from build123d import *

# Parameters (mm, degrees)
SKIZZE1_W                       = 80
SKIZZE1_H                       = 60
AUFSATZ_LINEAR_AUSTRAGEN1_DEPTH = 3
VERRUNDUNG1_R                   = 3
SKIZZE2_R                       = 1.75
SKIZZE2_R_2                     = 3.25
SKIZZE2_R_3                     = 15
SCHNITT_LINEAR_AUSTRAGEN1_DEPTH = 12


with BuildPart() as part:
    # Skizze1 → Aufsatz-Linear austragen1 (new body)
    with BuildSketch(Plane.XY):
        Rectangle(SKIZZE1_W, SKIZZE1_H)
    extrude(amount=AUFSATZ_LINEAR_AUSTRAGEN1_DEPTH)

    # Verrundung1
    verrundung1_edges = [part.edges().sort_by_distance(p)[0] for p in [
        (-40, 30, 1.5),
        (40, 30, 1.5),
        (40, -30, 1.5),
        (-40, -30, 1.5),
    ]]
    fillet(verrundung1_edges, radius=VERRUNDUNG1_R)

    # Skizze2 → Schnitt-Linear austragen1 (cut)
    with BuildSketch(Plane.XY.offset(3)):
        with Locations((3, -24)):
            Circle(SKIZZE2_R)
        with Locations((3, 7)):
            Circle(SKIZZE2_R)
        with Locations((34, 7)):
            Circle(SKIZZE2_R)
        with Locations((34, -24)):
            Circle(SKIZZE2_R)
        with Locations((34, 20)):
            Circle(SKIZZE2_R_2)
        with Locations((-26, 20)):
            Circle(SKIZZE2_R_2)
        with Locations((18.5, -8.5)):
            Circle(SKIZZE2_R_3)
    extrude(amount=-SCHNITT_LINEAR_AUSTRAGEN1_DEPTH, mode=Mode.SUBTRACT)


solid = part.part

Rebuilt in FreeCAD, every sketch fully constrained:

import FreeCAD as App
import Part
import Sketcher

V = App.Vector
Q = App.Units.Quantity


def edges_at(feature, points):
    """Names of the edges that pass closest to the given points."""
    edges = feature.Shape.Edges
    near = lambda p: min(range(len(edges)), key=lambda i: edges[i].distToShape(Part.Vertex(*p))[0])
    return sorted({f"Edge{near(p) + 1}" for p in points})

doc = App.newDocument("Part")
body = doc.addObject("PartDesign::Body", "Body")

# Sketch on XY plane
sketch1 = body.newObject("Sketcher::SketchObject", "Sketch")
sketch1.AttachmentSupport = (doc.getObject("XY_Plane"), [""])
sketch1.MapMode = "FlatFace"
sketch1.addGeometry([
    Part.LineSegment(V(-40, 30, 0), V(-40, -30, 0)),
    Part.LineSegment(V(-40, -30, 0), V(40, -30, 0)),
    Part.LineSegment(V(40, -30, 0), V(40, 30, 0)),
    Part.LineSegment(V(40, 30, 0), V(-40, 30, 0)),
], False)
sketch1.addConstraint([
    Sketcher.Constraint("Coincident", 0, 2, 1, 1),
    Sketcher.Constraint("Coincident", 1, 2, 2, 1),
    Sketcher.Constraint("Coincident", 2, 2, 3, 1),
    Sketcher.Constraint("Coincident", 3, 2, 0, 1),
    Sketcher.Constraint("Vertical", 0),
    Sketcher.Constraint("Horizontal", 1),
    Sketcher.Constraint("Vertical", 2),
    Sketcher.Constraint("Horizontal", 3),
    Sketcher.Constraint("Symmetric", 0, 2, 2, 2, -1, 1),
    Sketcher.Constraint("DistanceX", 1, 1, 1, 2, Q("80 mm")),
    Sketcher.Constraint("DistanceY", 0, 2, 0, 1, Q("60 mm")),
])
pad1 = body.newObject("PartDesign::Pad", "Pad")
pad1.Profile = sketch1
pad1.Length = 3
doc.recompute()

fillet = body.newObject("PartDesign::Fillet", "Fillet")
fillet.Base = (pad1, edges_at(pad1, [
    (-40, 30, 1.5),
    (40, 30, 1.5),
    (40, -30, 1.5),
    (-40, -30, 1.5),
]))
fillet.Radius = 3

# Sketch on XY plane
sketch2 = body.newObject("Sketcher::SketchObject", "Sketch001")
sketch2.AttachmentSupport = (doc.getObject("XY_Plane"), [""])
sketch2.MapMode = "FlatFace"
sketch2.AttachmentOffset = App.Placement(V(0, 0, 3), App.Rotation())
sketch2.addGeometry([
    Part.Circle(V(3, -24, 0), V(0, 0, 1), 1.8),  # 0
    Part.Circle(V(3, 7, 0), V(0, 0, 1), 1.8),  # 1
    Part.Circle(V(34, 7, 0), V(0, 0, 1), 1.8),  # 2
    Part.Circle(V(34, -24, 0), V(0, 0, 1), 1.8),  # 3
    Part.Circle(V(34, 20, 0), V(0, 0, 1), 3.2),  # 4
    Part.Circle(V(-26, 20, 0), V(0, 0, 1), 3.2),  # 5
    Part.Circle(V(18.5, -8.5, 0), V(0, 0, 1), 15),  # 6
], False)
sketch2.addConstraint([
    Sketcher.Constraint("Equal", 0, 1),
    Sketcher.Constraint("Equal", 1, 2),
    Sketcher.Constraint("Equal", 2, 3),
    Sketcher.Constraint("Equal", 4, 5),
    Sketcher.Constraint("Horizontal", 1, 3, 2, 3),
    Sketcher.Constraint("Horizontal", 0, 3, 3, 3),
    Sketcher.Constraint("Horizontal", 4, 3, 5, 3),
    Sketcher.Constraint("Vertical", 0, 3, 1, 3),
    Sketcher.Constraint("Vertical", 2, 3, 3, 3),
    Sketcher.Constraint("Vertical", 3, 3, 4, 3),
    Sketcher.Constraint("Diameter", 6, Q("30 mm")),
    Sketcher.Constraint("Diameter", 0, Q("3.5 mm")),
    Sketcher.Constraint("Diameter", 4, Q("6.5 mm")),
    Sketcher.Constraint("DistanceX", -1, 1, 0, 3, Q("3 mm")),
    Sketcher.Constraint("DistanceY", 0, 3, -1, 1, Q("24 mm")),
    Sketcher.Constraint("DistanceY", -1, 1, 1, 3, Q("7 mm")),
    Sketcher.Constraint("DistanceX", -1, 1, 2, 3, Q("34 mm")),
    Sketcher.Constraint("DistanceY", -1, 1, 4, 3, Q("20 mm")),
    Sketcher.Constraint("DistanceX", 5, 3, -1, 1, Q("26 mm")),
    Sketcher.Constraint("DistanceX", -1, 1, 6, 3, Q("18.5 mm")),
    Sketcher.Constraint("DistanceY", 6, 3, -1, 1, Q("8.5 mm")),
])
pocket1 = body.newObject("PartDesign::Pocket", "Pocket")
pocket1.Profile = sketch2
pocket1.Length = 12

doc.recompute()
